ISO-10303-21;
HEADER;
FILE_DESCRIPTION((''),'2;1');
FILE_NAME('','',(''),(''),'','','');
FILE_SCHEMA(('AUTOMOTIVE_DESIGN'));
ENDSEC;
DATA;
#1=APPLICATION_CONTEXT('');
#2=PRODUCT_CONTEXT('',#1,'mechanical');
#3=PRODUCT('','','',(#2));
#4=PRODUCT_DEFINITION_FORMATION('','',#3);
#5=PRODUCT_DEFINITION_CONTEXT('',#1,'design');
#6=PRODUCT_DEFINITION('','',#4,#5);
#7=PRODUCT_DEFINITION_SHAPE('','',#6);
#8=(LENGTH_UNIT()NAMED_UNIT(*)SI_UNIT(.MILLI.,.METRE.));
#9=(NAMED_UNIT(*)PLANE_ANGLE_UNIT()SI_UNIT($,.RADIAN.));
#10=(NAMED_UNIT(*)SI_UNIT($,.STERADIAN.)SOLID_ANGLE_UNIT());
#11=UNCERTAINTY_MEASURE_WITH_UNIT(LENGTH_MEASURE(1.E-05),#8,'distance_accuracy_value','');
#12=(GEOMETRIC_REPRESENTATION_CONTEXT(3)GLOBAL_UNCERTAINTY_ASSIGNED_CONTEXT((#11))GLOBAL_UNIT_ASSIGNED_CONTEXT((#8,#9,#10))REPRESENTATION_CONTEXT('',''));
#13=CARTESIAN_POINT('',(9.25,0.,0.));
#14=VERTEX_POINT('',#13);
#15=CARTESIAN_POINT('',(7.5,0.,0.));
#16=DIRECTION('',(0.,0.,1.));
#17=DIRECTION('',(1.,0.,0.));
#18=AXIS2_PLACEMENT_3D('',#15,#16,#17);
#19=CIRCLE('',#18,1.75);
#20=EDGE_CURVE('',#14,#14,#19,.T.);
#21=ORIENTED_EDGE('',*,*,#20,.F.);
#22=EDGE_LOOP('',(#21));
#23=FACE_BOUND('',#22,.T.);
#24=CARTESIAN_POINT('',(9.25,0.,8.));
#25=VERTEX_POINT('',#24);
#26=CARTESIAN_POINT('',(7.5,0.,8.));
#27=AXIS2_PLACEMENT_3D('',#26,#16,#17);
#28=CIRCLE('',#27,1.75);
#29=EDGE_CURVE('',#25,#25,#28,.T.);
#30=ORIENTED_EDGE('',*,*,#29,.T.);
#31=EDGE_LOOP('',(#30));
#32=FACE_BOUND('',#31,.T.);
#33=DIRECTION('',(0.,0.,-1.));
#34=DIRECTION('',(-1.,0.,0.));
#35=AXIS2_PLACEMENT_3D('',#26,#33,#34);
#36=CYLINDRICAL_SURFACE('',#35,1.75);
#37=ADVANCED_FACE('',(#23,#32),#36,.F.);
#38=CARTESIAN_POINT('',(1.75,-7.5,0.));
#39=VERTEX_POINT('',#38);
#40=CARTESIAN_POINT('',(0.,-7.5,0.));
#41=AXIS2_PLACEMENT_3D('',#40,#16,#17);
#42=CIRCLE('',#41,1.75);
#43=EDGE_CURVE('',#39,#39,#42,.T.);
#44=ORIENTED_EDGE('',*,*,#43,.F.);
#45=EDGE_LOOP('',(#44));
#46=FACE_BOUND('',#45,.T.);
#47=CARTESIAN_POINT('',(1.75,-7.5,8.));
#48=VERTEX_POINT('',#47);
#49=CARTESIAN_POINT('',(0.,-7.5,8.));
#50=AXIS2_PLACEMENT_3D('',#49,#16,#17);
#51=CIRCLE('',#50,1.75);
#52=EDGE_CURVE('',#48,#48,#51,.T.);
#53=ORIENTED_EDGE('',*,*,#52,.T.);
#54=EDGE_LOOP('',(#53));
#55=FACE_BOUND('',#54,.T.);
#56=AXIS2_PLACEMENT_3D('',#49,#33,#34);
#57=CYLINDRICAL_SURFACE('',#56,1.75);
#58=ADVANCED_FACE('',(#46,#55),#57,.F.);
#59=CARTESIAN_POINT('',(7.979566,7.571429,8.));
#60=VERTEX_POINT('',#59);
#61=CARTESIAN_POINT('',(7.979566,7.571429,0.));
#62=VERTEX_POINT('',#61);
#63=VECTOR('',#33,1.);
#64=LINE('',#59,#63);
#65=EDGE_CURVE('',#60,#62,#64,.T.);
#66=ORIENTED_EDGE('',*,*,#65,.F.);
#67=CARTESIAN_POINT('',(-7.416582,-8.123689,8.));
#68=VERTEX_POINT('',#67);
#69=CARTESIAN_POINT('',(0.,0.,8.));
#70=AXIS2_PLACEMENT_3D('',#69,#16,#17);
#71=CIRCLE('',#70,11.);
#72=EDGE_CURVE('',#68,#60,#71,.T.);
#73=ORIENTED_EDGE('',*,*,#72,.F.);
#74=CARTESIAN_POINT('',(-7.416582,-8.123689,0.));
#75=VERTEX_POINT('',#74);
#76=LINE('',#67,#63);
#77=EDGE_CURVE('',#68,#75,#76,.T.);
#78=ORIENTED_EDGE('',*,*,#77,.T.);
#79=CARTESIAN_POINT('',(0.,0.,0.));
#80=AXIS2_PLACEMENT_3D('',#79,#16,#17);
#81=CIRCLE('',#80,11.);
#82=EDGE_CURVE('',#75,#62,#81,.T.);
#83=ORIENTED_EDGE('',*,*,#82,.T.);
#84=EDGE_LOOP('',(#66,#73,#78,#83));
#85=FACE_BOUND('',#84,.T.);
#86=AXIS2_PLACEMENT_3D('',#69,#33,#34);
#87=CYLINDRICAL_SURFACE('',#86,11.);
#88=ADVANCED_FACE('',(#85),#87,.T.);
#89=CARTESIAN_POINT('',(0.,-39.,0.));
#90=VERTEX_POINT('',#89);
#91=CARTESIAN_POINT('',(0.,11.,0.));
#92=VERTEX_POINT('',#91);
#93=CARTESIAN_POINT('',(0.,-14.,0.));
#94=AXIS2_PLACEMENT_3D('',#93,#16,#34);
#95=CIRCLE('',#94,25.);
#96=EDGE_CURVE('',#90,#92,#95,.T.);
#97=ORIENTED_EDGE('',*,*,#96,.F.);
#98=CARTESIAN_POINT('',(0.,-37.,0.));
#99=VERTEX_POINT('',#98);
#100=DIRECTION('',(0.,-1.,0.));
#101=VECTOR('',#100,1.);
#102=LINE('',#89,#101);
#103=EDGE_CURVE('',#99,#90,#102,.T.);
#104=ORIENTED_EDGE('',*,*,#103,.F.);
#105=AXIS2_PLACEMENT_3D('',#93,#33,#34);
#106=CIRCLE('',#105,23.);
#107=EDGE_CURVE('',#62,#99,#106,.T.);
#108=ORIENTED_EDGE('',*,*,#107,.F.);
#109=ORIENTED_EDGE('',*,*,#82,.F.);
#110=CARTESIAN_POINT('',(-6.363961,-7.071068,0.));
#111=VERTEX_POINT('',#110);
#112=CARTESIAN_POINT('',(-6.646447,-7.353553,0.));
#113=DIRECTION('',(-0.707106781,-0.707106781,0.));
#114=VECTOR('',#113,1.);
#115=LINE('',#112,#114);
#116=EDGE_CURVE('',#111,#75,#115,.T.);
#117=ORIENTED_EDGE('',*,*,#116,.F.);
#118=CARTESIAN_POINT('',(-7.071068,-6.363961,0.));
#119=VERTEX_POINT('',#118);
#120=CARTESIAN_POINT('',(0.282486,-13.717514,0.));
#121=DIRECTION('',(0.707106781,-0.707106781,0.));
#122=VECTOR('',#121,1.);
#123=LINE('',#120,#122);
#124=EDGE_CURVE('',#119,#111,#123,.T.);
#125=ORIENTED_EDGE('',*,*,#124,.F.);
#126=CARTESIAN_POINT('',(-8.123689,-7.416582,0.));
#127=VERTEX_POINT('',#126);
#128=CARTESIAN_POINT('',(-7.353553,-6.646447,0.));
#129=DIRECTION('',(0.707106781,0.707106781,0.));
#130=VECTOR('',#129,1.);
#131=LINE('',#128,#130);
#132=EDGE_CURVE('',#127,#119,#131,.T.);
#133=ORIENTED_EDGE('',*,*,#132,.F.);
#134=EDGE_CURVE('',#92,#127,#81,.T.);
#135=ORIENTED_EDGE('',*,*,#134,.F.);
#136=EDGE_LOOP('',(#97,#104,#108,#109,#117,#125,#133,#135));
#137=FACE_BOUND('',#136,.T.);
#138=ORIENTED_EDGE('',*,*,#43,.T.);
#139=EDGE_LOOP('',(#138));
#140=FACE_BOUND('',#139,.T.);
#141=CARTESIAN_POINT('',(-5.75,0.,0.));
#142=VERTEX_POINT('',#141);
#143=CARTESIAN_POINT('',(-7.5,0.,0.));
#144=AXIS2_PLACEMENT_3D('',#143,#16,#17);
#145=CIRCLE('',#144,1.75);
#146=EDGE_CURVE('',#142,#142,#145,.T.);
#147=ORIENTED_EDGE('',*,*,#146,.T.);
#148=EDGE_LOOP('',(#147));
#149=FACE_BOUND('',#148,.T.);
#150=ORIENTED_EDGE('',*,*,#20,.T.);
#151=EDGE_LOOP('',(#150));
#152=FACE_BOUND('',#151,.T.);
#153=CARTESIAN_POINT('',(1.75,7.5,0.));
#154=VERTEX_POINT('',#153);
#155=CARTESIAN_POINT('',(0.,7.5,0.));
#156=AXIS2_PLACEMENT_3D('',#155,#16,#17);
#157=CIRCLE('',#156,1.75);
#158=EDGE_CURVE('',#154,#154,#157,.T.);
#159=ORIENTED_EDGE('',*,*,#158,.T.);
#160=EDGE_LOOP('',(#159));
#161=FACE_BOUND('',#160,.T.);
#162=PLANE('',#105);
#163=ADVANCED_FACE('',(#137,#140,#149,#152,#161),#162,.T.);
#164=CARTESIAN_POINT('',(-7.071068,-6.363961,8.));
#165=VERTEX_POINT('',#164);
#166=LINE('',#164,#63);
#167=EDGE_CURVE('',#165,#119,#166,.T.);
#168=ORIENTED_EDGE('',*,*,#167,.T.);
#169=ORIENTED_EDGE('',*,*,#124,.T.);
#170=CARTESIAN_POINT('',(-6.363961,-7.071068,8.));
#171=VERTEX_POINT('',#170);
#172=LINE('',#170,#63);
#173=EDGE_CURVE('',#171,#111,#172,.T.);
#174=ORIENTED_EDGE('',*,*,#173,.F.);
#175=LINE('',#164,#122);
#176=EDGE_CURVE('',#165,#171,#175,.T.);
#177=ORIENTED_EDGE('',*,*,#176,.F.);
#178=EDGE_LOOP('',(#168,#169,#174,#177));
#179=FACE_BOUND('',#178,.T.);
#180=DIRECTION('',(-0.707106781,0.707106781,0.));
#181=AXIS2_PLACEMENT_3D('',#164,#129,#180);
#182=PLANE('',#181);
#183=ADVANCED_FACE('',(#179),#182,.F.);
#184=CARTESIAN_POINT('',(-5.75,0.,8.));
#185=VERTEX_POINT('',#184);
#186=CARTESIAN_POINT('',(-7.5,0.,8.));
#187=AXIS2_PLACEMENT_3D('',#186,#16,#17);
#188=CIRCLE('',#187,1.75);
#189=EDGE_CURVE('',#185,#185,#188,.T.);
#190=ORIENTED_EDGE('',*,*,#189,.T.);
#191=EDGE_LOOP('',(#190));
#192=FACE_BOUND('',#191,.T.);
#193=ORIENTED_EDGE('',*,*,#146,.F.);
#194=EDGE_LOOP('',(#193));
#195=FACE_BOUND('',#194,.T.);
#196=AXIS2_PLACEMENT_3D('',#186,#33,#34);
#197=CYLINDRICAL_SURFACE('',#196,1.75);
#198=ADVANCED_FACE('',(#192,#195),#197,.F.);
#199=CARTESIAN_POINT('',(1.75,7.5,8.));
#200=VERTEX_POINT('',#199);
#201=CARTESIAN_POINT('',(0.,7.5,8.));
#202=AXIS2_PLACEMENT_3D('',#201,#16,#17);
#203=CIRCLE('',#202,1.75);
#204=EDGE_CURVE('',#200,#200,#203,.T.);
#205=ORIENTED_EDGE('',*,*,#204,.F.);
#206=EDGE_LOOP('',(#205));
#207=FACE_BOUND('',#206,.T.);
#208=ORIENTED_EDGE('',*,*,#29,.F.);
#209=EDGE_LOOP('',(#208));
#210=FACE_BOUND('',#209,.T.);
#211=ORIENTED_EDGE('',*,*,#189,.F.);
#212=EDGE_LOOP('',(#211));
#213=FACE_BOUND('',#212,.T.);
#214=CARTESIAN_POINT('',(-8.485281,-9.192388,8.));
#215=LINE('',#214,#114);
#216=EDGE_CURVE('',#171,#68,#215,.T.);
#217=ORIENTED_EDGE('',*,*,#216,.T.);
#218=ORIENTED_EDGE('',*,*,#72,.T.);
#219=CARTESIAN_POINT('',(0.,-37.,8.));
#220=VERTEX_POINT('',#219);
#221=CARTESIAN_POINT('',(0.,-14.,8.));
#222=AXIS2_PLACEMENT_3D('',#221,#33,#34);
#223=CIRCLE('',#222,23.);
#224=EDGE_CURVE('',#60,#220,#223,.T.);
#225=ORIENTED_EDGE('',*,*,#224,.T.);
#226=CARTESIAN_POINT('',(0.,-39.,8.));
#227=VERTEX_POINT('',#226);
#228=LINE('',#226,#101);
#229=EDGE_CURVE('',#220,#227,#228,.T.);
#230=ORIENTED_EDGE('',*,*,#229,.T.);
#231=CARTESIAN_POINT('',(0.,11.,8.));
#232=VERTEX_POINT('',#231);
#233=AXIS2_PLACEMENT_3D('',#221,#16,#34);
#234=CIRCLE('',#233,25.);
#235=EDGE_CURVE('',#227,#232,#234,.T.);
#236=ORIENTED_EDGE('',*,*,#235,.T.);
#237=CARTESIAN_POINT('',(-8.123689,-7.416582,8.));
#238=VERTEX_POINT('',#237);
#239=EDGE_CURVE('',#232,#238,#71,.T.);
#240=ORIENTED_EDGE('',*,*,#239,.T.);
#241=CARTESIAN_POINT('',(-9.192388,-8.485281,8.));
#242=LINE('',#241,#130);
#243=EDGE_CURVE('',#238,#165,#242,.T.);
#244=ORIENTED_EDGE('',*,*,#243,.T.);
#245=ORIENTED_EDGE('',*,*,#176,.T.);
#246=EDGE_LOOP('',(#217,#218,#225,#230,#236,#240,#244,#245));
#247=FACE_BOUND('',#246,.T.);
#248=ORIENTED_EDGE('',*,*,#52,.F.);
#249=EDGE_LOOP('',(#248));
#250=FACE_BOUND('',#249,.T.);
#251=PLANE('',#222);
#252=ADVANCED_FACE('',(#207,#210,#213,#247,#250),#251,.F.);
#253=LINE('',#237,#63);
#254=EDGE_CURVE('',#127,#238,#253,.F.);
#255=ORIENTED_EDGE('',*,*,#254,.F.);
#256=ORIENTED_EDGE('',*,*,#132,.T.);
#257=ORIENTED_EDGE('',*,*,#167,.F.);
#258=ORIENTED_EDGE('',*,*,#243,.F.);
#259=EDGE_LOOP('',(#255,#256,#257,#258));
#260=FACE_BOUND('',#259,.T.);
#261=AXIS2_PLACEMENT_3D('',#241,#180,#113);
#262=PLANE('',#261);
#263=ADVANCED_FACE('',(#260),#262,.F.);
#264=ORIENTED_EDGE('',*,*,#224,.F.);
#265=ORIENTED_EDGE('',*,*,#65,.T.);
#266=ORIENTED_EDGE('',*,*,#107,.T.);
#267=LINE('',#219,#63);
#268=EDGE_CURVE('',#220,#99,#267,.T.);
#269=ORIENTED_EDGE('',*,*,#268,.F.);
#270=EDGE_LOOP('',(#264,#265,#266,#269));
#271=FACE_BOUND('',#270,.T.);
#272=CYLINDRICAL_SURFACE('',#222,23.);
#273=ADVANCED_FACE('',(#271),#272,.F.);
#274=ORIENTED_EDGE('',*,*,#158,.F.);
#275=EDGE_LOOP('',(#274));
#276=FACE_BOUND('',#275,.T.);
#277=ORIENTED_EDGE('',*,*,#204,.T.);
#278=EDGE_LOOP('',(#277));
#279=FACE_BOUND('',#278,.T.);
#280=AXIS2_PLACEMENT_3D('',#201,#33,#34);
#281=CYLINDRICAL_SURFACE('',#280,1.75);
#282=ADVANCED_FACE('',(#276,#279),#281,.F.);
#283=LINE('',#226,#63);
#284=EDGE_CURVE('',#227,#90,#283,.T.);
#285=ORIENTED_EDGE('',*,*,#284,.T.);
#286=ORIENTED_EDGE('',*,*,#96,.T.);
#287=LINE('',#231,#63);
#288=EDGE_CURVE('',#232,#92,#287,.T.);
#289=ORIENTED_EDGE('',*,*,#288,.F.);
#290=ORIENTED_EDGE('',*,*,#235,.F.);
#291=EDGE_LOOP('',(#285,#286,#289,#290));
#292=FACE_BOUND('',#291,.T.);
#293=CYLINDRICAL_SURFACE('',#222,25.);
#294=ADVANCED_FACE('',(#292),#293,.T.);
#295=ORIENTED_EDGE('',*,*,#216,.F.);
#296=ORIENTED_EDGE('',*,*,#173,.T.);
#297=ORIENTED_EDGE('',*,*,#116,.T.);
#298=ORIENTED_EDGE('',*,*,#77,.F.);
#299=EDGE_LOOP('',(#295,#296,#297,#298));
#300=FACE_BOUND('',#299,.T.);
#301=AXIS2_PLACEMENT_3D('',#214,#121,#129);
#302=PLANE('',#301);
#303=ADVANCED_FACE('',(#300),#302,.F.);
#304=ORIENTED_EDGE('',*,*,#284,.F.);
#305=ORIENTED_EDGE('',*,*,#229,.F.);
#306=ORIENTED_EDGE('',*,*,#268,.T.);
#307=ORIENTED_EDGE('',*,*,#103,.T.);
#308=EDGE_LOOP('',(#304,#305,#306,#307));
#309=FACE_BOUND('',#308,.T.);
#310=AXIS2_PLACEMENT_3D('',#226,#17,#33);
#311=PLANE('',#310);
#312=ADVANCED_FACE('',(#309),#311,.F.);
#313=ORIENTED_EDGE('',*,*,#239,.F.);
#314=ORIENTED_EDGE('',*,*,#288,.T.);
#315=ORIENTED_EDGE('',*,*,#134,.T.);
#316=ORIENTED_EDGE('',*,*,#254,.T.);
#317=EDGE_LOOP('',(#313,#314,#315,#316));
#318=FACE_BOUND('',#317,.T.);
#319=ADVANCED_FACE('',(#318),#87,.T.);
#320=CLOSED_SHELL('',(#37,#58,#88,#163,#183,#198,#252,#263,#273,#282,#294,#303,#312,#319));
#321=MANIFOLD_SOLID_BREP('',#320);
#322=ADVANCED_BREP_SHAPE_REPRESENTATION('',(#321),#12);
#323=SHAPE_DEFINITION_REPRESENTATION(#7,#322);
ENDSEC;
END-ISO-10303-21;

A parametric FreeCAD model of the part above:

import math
import FreeCAD as App
import Part
import Sketcher
Q = App.Units.Quantity

doc = App.newDocument("Part")
body = doc.addObject("PartDesign::Body", "Body")

# Sketch on XY plane
sketch1 = body.newObject("Sketcher::SketchObject", "Sketch")
sketch1.AttachmentSupport = (doc.getObject("XY_Plane"), [""])
sketch1.MapMode = "FlatFace"
sketch1.addGeometry([
    Part.LineSegment(App.Vector(0, -37, 0), App.Vector(0, -39, 0)),  # 0
    Part.ArcOfCircle(Part.Circle(App.Vector(0, -14, 0), App.Vector(0, 0, 1), 25), math.radians(-90), math.radians(90)),  # 1
    Part.ArcOfCircle(Part.Circle(App.Vector(0, 0, 0), App.Vector(0, 0, 1), 11), math.radians(90), math.radians(270)),  # 2
    Part.ArcOfCircle(Part.Circle(App.Vector(0, 0, 0), App.Vector(0, 0, 1), 11), math.radians(-90), math.radians(43)),  # 3
    Part.ArcOfCircle(Part.Circle(App.Vector(0, -14, 0), App.Vector(0, 0, 1), 23), math.radians(-90), math.radians(70)),  # 4
    Part.Circle(App.Vector(0, -7.5, 0), App.Vector(0, 0, 1), 1.8),  # 5
    Part.Circle(App.Vector(7.5, 0, 0), App.Vector(0, 0, 1), 1.8),  # 6
    Part.Circle(App.Vector(-7.5, 0, 0), App.Vector(0, 0, 1), 1.8),  # 7
    Part.Circle(App.Vector(0, 7.5, 0), App.Vector(0, 0, 1), 1.8),  # 8
], False)
sketch1.addConstraint([
    Sketcher.Constraint("Coincident", 0, 2, 1, 1),
    Sketcher.Constraint("Tangent", 1, 2, 2, 1),
    Sketcher.Constraint("Tangent", 2, 2, 3, 1),
    Sketcher.Constraint("Coincident", 3, 2, 4, 2),
    Sketcher.Constraint("Coincident", 4, 1, 0, 1),
    Sketcher.Constraint("Vertical", 0),
    Sketcher.Constraint("Coincident", 2, 3, -1, 1),
    Sketcher.Constraint("Coincident", 4, 3, 1, 3),
    Sketcher.Constraint("Equal", 2, 3),
    Sketcher.Constraint("Equal", 5, 6),
    Sketcher.Constraint("Equal", 6, 7),
    Sketcher.Constraint("Equal", 7, 8),
    Sketcher.Constraint("Symmetric", 6, 3, 7, 3, -1, 1),
    Sketcher.Constraint("Symmetric", 5, 3, 8, 3, -1, 1),
    Sketcher.Constraint("PointOnObject", 1, 3, -2),
    Sketcher.Constraint("PointOnObject", 5, 3, -2),
    Sketcher.Constraint("PointOnObject", 6, 3, -1),
    Sketcher.Constraint("PointOnObject", 0, 2, -2),
    Sketcher.Constraint("PointOnObject", 2, 2, -2),
    Sketcher.Constraint("Radius", 1, Q("25 mm")),
    Sketcher.Constraint("Radius", 2, Q("11 mm")),
    Sketcher.Constraint("Radius", 4, Q("23 mm")),
    Sketcher.Constraint("Diameter", 5, Q("3.5 mm")),
    Sketcher.Constraint("DistanceX", 7, 3, 6, 3, Q("15 mm")),
    Sketcher.Constraint("DistanceY", 5, 3, 8, 3, Q("15 mm")),
])
pad1 = body.newObject("PartDesign::Pad", "Pad")
pad1.Profile = sketch1
pad1.Length = 8

# Sketch on XY plane
sketch2 = body.newObject("Sketcher::SketchObject", "Sketch001")
sketch2.AttachmentSupport = (doc.getObject("XY_Plane"), [""])
sketch2.MapMode = "FlatFace"
sketch2.addGeometry([
    Part.LineSegment(App.Vector(-9.2, -8.5, 0), App.Vector(-7.1, -6.4, 0)),
    Part.LineSegment(App.Vector(-7.1, -6.4, 0), App.Vector(-6.4, -7.1, 0)),
    Part.LineSegment(App.Vector(-6.4, -7.1, 0), App.Vector(-8.5, -9.2, 0)),
    Part.LineSegment(App.Vector(-8.5, -9.2, 0), App.Vector(-9.2, -8.5, 0)),
], False)
sketch2.addConstraint([
    Sketcher.Constraint("Coincident", 0, 2, 1, 1),
    Sketcher.Constraint("Coincident", 1, 2, 2, 1),
    Sketcher.Constraint("Coincident", 2, 2, 3, 1),
    Sketcher.Constraint("Coincident", 3, 2, 0, 1),
    Sketcher.Constraint("Perpendicular", 0, 1),
    Sketcher.Constraint("Perpendicular", 1, 2),
    Sketcher.Constraint("Perpendicular", 2, 3),
    Sketcher.Constraint("Angle", 0, Q("45 deg")),
    Sketcher.Constraint("Distance", 0, Q("3 mm")),
    Sketcher.Constraint("Distance", 1, Q("1 mm")),
    Sketcher.Constraint("DistanceY", 0, 2, -1, 1, Q("6.363961 mm")),
    Sketcher.Constraint("DistanceX", 1, 2, -1, 1, Q("6.363961 mm")),
])
pocket1 = body.newObject("PartDesign::Pocket", "Pocket")
pocket1.Profile = sketch2
pocket1.Type = "ThroughAll"
pocket1.Midplane = True

doc.recompute()
